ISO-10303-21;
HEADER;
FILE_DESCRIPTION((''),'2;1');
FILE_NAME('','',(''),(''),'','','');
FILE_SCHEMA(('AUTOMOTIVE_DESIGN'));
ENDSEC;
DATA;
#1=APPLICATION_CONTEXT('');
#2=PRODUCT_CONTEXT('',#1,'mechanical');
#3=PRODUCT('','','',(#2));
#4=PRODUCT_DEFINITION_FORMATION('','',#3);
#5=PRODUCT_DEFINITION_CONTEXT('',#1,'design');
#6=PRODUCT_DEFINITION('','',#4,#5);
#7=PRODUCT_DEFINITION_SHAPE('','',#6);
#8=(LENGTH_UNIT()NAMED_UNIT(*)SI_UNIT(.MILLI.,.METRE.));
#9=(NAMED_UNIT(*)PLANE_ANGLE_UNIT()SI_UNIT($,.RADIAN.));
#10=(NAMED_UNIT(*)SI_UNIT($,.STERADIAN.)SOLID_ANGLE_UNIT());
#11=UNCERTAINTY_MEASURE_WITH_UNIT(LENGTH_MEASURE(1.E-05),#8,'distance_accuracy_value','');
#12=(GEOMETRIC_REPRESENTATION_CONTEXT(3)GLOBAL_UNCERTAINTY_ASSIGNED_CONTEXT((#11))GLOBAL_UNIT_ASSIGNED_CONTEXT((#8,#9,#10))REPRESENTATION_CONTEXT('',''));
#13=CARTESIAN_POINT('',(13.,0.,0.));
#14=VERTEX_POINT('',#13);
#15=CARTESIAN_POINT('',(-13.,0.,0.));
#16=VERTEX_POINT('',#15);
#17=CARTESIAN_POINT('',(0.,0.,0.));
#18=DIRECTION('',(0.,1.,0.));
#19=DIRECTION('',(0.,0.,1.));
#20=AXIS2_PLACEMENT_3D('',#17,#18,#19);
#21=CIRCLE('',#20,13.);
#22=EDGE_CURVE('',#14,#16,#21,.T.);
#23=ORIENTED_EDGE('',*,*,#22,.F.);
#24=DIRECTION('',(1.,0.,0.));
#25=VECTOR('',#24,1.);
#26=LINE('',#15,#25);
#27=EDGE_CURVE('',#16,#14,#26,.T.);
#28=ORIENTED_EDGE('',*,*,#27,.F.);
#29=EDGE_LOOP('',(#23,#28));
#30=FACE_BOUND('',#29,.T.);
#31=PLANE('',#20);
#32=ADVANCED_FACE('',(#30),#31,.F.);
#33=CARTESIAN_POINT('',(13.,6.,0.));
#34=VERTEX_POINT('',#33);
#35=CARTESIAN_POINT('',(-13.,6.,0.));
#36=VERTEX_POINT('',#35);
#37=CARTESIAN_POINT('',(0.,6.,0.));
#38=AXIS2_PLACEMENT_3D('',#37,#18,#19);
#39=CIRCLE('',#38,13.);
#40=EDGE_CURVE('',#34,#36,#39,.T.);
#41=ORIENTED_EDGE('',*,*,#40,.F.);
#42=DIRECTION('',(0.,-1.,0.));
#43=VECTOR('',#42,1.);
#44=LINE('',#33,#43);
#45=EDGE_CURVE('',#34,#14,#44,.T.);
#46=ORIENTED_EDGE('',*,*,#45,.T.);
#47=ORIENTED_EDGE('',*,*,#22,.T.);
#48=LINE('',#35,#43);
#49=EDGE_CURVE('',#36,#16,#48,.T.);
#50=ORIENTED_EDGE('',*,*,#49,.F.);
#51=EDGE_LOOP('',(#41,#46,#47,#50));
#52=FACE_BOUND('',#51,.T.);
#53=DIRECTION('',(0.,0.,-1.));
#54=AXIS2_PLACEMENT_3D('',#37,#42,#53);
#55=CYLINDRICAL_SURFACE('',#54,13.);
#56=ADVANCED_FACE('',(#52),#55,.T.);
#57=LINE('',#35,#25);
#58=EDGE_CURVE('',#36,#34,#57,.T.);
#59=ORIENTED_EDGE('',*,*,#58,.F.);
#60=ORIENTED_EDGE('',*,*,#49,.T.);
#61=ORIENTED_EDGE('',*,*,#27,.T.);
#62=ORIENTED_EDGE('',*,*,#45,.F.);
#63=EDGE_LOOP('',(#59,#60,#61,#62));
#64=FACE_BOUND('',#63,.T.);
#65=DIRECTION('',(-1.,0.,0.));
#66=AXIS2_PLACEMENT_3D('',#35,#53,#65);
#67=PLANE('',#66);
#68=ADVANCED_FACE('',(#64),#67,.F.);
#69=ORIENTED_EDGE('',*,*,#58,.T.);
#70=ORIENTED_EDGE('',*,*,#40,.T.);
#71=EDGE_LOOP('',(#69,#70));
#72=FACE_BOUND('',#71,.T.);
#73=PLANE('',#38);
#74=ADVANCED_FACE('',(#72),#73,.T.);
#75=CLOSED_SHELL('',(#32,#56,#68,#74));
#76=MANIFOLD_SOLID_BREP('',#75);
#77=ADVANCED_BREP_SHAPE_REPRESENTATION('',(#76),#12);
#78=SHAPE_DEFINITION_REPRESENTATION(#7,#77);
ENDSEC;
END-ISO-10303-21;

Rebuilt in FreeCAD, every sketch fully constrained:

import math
import FreeCAD as App
import Part
import Sketcher

doc = App.newDocument("Part")
body = doc.addObject("PartDesign::Body", "Body")

# Sketch on XZ plane
sketch1 = body.newObject("Sketcher::SketchObject", "Sketch")
sketch1.AttachmentSupport = (doc.getObject("XZ_Plane"), [""])
sketch1.MapMode = "FlatFace"
sketch1.addGeometry([
    Part.LineSegment(App.Vector(-13, 0, 0), App.Vector(13, 0, 0)),
    Part.ArcOfCircle(Part.Circle(App.Vector(0, 0, 0), App.Vector(0, 0, 1), 13), math.radians(180), math.radians(360)),
], False)
sketch1.addConstraint([
    Sketcher.Constraint("Coincident", 0, 1, 1, 1),
    Sketcher.Constraint("Coincident", 1, 2, 0, 2),
    Sketcher.Constraint("Horizontal", 0),
    Sketcher.Constraint("Coincident", 1, 3, -1, 1),
    Sketcher.Constraint("PointOnObject", 0, 1, -1),
    Sketcher.Constraint("Radius", 1, 13.0),
])
pad1 = body.newObject("PartDesign::Pad", "Pad")
pad1.Profile = sketch1
pad1.Length = 6
pad1.Reversed = True

doc.recompute()
